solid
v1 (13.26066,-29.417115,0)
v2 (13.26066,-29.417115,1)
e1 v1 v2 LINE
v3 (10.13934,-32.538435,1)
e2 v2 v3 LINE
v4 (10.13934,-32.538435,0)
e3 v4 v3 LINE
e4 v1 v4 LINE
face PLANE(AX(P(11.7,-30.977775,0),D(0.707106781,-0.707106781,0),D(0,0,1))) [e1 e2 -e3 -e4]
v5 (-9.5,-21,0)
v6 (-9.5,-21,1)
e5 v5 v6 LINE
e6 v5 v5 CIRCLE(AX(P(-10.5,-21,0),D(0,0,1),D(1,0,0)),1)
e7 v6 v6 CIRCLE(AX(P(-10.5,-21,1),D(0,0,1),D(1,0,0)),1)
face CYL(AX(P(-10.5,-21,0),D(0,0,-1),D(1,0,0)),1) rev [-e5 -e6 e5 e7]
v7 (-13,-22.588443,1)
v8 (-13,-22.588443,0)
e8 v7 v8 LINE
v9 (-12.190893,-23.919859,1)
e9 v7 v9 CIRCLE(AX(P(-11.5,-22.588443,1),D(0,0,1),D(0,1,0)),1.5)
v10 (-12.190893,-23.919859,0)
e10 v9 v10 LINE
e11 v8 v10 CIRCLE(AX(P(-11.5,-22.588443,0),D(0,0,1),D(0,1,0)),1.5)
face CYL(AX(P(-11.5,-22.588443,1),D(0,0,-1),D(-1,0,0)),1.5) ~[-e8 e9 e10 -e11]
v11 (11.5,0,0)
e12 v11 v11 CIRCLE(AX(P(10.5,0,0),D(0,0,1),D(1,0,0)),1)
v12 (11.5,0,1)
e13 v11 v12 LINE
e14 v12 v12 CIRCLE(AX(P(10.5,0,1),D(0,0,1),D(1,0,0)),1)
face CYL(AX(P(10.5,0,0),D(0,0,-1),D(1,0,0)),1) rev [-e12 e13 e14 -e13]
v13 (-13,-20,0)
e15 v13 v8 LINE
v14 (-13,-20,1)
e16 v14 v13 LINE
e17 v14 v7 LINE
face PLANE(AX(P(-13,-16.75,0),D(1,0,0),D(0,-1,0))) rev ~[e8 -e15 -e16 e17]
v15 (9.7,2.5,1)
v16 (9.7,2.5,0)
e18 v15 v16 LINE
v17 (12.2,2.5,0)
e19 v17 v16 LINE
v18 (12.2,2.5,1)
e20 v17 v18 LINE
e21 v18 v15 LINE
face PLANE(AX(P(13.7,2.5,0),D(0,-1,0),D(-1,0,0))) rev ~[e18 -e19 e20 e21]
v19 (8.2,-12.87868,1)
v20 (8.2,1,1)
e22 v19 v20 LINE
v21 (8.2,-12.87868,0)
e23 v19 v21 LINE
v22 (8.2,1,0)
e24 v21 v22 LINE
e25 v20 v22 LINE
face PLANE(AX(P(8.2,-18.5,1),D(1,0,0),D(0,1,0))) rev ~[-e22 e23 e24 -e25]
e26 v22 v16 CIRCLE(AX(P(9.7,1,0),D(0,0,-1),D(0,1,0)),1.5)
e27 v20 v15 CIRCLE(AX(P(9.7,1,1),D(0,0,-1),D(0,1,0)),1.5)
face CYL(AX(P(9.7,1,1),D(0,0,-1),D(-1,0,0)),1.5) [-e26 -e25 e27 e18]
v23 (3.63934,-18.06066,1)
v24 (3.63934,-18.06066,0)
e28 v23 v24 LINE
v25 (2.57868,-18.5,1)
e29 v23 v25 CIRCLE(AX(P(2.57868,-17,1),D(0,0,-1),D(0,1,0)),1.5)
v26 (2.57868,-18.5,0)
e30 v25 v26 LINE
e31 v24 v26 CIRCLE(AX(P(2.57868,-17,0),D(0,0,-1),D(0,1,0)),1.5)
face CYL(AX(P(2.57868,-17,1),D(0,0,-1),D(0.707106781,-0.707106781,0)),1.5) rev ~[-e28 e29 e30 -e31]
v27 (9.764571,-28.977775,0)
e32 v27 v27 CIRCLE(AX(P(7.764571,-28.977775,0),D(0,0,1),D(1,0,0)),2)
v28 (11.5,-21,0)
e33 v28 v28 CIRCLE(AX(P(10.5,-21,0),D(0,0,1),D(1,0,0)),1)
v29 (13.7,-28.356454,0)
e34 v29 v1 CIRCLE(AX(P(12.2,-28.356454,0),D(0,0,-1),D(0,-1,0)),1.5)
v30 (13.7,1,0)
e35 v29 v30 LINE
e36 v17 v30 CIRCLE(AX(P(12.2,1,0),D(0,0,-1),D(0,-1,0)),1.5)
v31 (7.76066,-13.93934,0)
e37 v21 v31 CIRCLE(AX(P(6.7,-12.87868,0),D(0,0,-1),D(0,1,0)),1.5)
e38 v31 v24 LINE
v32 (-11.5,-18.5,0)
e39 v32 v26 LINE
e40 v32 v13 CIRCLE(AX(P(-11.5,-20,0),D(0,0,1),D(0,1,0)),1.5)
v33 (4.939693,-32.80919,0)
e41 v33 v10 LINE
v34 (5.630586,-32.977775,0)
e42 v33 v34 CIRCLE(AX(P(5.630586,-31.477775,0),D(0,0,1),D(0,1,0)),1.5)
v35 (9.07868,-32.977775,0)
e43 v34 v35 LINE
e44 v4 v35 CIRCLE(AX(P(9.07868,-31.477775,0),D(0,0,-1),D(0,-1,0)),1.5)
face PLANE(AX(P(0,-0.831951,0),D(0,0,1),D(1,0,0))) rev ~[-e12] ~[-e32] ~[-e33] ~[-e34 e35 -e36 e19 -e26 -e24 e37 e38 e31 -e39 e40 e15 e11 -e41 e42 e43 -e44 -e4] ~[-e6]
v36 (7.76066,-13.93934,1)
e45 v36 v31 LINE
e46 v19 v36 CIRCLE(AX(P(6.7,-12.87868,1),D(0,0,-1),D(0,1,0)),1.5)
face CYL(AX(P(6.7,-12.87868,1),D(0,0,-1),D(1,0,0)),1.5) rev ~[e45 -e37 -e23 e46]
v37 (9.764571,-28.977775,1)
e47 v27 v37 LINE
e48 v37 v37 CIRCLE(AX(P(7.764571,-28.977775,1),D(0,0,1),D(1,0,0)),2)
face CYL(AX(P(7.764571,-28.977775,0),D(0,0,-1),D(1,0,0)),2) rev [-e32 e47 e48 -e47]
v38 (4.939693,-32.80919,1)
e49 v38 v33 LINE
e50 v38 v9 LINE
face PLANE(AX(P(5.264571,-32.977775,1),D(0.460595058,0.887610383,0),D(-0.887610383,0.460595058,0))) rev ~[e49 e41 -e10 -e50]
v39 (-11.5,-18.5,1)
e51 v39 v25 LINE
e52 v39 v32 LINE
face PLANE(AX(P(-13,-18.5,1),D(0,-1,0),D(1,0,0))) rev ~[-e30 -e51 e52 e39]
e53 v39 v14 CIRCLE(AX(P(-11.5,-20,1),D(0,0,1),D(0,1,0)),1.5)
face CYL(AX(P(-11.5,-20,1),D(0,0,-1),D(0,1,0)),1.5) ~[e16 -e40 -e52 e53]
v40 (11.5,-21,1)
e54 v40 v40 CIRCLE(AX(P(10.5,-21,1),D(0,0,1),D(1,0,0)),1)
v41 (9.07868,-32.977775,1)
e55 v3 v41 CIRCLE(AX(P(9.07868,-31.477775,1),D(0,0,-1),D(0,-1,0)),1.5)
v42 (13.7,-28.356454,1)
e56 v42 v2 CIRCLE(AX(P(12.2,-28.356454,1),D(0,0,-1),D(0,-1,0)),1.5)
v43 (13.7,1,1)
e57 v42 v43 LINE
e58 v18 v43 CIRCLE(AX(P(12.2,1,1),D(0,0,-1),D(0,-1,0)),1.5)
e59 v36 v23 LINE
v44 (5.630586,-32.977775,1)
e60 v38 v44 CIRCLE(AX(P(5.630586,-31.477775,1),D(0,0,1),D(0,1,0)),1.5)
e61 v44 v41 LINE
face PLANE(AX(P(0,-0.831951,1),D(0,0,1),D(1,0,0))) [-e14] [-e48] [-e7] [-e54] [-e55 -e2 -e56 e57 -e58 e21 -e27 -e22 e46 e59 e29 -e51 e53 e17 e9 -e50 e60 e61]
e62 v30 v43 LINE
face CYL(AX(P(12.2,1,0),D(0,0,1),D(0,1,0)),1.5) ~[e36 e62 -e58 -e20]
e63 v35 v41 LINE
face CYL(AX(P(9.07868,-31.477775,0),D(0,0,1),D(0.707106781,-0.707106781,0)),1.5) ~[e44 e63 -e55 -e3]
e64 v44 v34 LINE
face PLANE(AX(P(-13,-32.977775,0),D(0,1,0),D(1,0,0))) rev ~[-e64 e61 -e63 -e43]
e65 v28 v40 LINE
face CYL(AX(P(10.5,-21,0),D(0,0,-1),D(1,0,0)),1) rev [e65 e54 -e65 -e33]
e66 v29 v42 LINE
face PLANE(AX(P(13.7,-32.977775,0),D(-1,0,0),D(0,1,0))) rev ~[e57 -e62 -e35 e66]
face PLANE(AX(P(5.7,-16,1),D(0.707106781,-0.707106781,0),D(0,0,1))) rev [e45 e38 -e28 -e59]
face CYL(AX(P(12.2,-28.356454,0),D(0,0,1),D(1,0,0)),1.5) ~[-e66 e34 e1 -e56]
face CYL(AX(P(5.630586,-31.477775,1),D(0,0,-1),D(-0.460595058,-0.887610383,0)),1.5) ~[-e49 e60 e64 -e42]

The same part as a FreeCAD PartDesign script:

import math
import FreeCAD as App
import Part
import Sketcher
from FreeCAD import Vector
Q = App.Units.Quantity


def edges_at(feature, points):
    """Names of the edges that pass closest to the given points."""
    edges = feature.Shape.Edges
    near = lambda p: min(range(len(edges)), key=lambda i: edges[i].distToShape(Part.Vertex(*p))[0])
    return sorted({f"Edge{near(p) + 1}" for p in points})

doc = App.newDocument("Part")
params = doc.addObject("Spreadsheet::Sheet", "Params")
for row, (alias, value) in enumerate([
    ("sketch1_diameter", "2 mm"),
    ("sketch1_diameter2", "4 mm"),
    ("sketch1_radius", "6.25 mm"),
    ("sketch1_width", "2.5 mm"),
    ("sketch1_width2", "26.7 mm"),
    ("pad1_length", "1 mm"),
    ("sketch2_diameter", "2 mm"),
    ("sketch2_height", "21 mm"),
    ("sketch2_radius", "6.25 mm"),
    ("sketch2_width", "21.2 mm"),
    ("sketch2_width2", "2.5 mm"),
    ("chamfer_size", "4 mm"),
    ("chamfer2_size", "5 mm"),
    ("fillet_radius", "1.5 mm"),
], start=1):
    params.set(f"A{row}", alias)
    params.set(f"B{row}", "=" + value)
    params.setAlias(f"B{row}", alias)

body = doc.addObject("PartDesign::Body", "Body")

# Sketch on XY plane
sketch1 = body.newObject("Sketcher::SketchObject", "Sketch")
sketch1.AttachmentSupport = (doc.getObject("XY_Plane"), [""])
sketch1.MapMode = "FlatFace"
sketch1.addGeometry([
    Part.LineSegment(Vector(-13, 2.5, 0), Vector(-13, -4.25, 0)),  # 0
    Part.LineSegment(Vector(-13, -4.25, 0), Vector(-10.5, -4.25, 0)),  # 1
    Part.ArcOfCircle(Part.Circle(Vector(-10.5, -10.5, 0), Vector(0, 0, 1), 6.25), math.radians(-90), math.radians(90)),  # 2
    Part.LineSegment(Vector(-10.5, -16.75, 0), Vector(-13, -16.75, 0)),  # 3
    Part.LineSegment(Vector(-13, -16.75, 0), Vector(-13, -32.977775, 0)),  # 4
    Part.LineSegment(Vector(-13, -32.977775, 0), Vector(13.7, -32.977775, 0)),  # 5
    Part.LineSegment(Vector(13.7, -32.977775, 0), Vector(13.7, 2.5, 0)),  # 6
    Part.LineSegment(Vector(13.7, 2.5, 0), Vector(-13, 2.5, 0)),  # 7
    Part.Circle(Vector(-10.5, -21, 0), Vector(0, 0, 1), 1),  # 8
    Part.Circle(Vector(7.764571, -28.977775, 0), Vector(0, 0, 1), 2),  # 9
    Part.Circle(Vector(10.5, -21, 0), Vector(0, 0, 1), 1),  # 10
    Part.Circle(Vector(-10.5, 0, 0), Vector(0, 0, 1), 1),  # 11
    Part.Circle(Vector(10.5, 0, 0), Vector(0, 0, 1), 1),  # 12
], False)
sketch1.addConstraint([
    Sketcher.Constraint("Coincident", 0, 2, 1, 1),
    Sketcher.Constraint("Tangent", 1, 2, 2, 2),
    Sketcher.Constraint("Tangent", 2, 1, 3, 1),
    Sketcher.Constraint("Coincident", 3, 2, 4, 1),
    Sketcher.Constraint("Coincident", 4, 2, 5, 1),
    Sketcher.Constraint("Coincident", 5, 2, 6, 1),
    Sketcher.Constraint("Coincident", 6, 2, 7, 1),
    Sketcher.Constraint("Coincident", 7, 2, 0, 1),
    Sketcher.Constraint("Vertical", 0),
    Sketcher.Constraint("Horizontal", 1),
    Sketcher.Constraint("Horizontal", 3),
    Sketcher.Constraint("Vertical", 4),
    Sketcher.Constraint("Horizontal", 5),
    Sketcher.Constraint("Vertical", 6),
    Sketcher.Constraint("Horizontal", 7),
    Sketcher.Constraint("Equal", 8, 10),
    Sketcher.Constraint("Equal", 10, 11),
    Sketcher.Constraint("Equal", 11, 12),
    Sketcher.Constraint("Symmetric", 11, 3, 12, 3, -1, 1),
    Sketcher.Constraint("Symmetric", 8, 3, 10, 3, -2),
    Sketcher.Constraint("PointOnObject", 11, 3, -1),
    Sketcher.Constraint("Vertical", 2, 3, 8, 3),
    Sketcher.Constraint("Vertical", 8, 3, 11, 3),
    Sketcher.Constraint("Vertical", 0, 2, 3, 2),
    Sketcher.Constraint("Diameter", 8, Q("2 mm")),
    Sketcher.Constraint("Diameter", 9, Q("4 mm")),
    Sketcher.Constraint("Radius", 2, Q("6.25 mm")),
    Sketcher.Constraint("DistanceX", 1, 1, 1, 2, Q("2.5 mm")),
    Sketcher.Constraint("DistanceX", 5, 1, 5, 2, Q("26.7 mm")),
    Sketcher.Constraint("DistanceY", 8, 3, -1, 1, Q("21 mm")),
    Sketcher.Constraint("DistanceX", 0, 2, -1, 1, Q("13 mm")),
    Sketcher.Constraint("DistanceY", 4, 2, 9, 3, Q("4 mm")),
    Sketcher.Constraint("DistanceY", 2, 3, 6, 2, Q("13 mm")),
    Sketcher.Constraint("DistanceY", 2, 3, -1, 1, Q("10.5 mm")),
    Sketcher.Constraint("DistanceY", 4, 2, 4, 1, Q("16.227775 mm")),
    Sketcher.Constraint("DistanceX", -1, 1, 9, 3, Q("7.764571 mm")),
])
sketch1.setExpression("Constraints[24]", "Params.sketch1_diameter")
sketch1.setExpression("Constraints[25]", "Params.sketch1_diameter2")
sketch1.setExpression("Constraints[26]", "Params.sketch1_radius")
sketch1.setExpression("Constraints[27]", "Params.sketch1_width")
sketch1.setExpression("Constraints[28]", "Params.sketch1_width2")
pad1 = body.newObject("PartDesign::Pad", "Pad")
pad1.Profile = sketch1
pad1.setExpression("Length", "Params.pad1_length")

# Sketch on XY plane
sketch2 = body.newObject("Sketcher::SketchObject", "Sketch001")
sketch2.AttachmentSupport = (doc.getObject("XY_Plane"), [""])
sketch2.MapMode = "FlatFace"
sketch2.AttachmentOffset = App.Placement(Vector(0, 0, 1), App.Rotation())
sketch2.addGeometry([
    Part.LineSegment(Vector(5.264571, -32.977775, 0), Vector(-13, -23.5, 0)),  # 0
    Part.LineSegment(Vector(-13, -23.5, 0), Vector(-13, -32.977775, 0)),  # 1
    Part.LineSegment(Vector(-13, -32.977775, 0), Vector(5.264571, -32.977775, 0)),  # 2
    Part.LineSegment(Vector(-13, -16.75, 0), Vector(-13, -18.5, 0)),  # 3
    Part.LineSegment(Vector(-13, -18.5, 0), Vector(8.2, -18.5, 0)),  # 4
    Part.LineSegment(Vector(8.2, -18.5, 0), Vector(8.2, 2.5, 0)),  # 5
    Part.LineSegment(Vector(8.2, 2.5, 0), Vector(-13, 2.5, 0)),  # 6
    Part.LineSegment(Vector(-13, 2.5, 0), Vector(-13, -4.25, 0)),  # 7
    Part.LineSegment(Vector(-13, -4.25, 0), Vector(-10.5, -4.25, 0)),  # 8
    Part.ArcOfCircle(Part.Circle(Vector(-10.5, -10.5, 0), Vector(0, 0, 1), 6.25), math.radians(-90), math.radians(90)),  # 9
    Part.LineSegment(Vector(-10.5, -16.75, 0), Vector(-13, -16.75, 0)),  # 10
    Part.Circle(Vector(-10.5, 0, 0), Vector(0, 0, 1), 1),  # 11
], False)
sketch2.addConstraint([
    Sketcher.Constraint("Coincident", 0, 2, 1, 1),
    Sketcher.Constraint("Coincident", 1, 2, 2, 1),
    Sketcher.Constraint("Coincident", 2, 2, 0, 1),
    Sketcher.Constraint("Coincident", 3, 2, 4, 1),
    Sketcher.Constraint("Coincident", 4, 2, 5, 1),
    Sketcher.Constraint("Coincident", 5, 2, 6, 1),
    Sketcher.Constraint("Coincident", 6, 2, 7, 1),
    Sketcher.Constraint("Coincident", 7, 2, 8, 1),
    Sketcher.Constraint("Tangent", 8, 2, 9, 2),
    Sketcher.Constraint("Tangent", 9, 1, 10, 1),
    Sketcher.Constraint("Coincident", 10, 2, 3, 1),
    Sketcher.Constraint("Vertical", 1),
    Sketcher.Constraint("Horizontal", 2),
    Sketcher.Constraint("Vertical", 3),
    Sketcher.Constraint("Horizontal", 4),
    Sketcher.Constraint("Vertical", 5),
    Sketcher.Constraint("Horizontal", 6),
    Sketcher.Constraint("Vertical", 7),
    Sketcher.Constraint("Horizontal", 8),
    Sketcher.Constraint("Horizontal", 10),
    Sketcher.Constraint("PointOnObject", 11, 3, -1),
    Sketcher.Constraint("Vertical", 9, 3, 11, 3),
    Sketcher.Constraint("Vertical", 1, 2, 3, 2),
    Sketcher.Constraint("Vertical", 3, 2, 6, 2),
    Sketcher.Constraint("Diameter", 11, Q("2 mm")),
    Sketcher.Constraint("DistanceY", 5, 1, 5, 2, Q("21 mm")),
    Sketcher.Constraint("Radius", 9, Q("6.25 mm")),
    Sketcher.Constraint("DistanceX", 4, 1, 4, 2, Q("21.2 mm")),
    Sketcher.Constraint("DistanceX", 8, 1, 8, 2, Q("2.5 mm")),
    Sketcher.Constraint("DistanceX", 0, 2, -1, 1, Q("13 mm")),
    Sketcher.Constraint("DistanceY", 0, 2, 9, 3, Q("13 mm")),
    Sketcher.Constraint("DistanceY", 0, 2, 3, 2, Q("5 mm")),
    Sketcher.Constraint("DistanceY", 9, 3, -1, 1, Q("10.5 mm")),
    Sketcher.Constraint("DistanceX", 2, 1, 2, 2, Q("18.264571 mm")),
    Sketcher.Constraint("Distance", 0, Q("20.577239 mm")),
])
sketch2.setExpression("Constraints[24]", "Params.sketch2_diameter")
sketch2.setExpression("Constraints[25]", "Params.sketch2_height")
sketch2.setExpression("Constraints[26]", "Params.sketch2_radius")
sketch2.setExpression("Constraints[27]", "Params.sketch2_width")
sketch2.setExpression("Constraints[28]", "Params.sketch2_width2")
pocket1 = body.newObject("PartDesign::Pocket", "Pocket")
pocket1.Profile = sketch2
pocket1.Type = "ThroughAll"
doc.recompute()

chamfer = body.newObject("PartDesign::Chamfer", "Chamfer")
chamfer.Base = (pocket1, edges_at(pocket1, [(13.7, -32.978, 0.5)]))
chamfer.setExpression("Size", "Params.chamfer_size")
doc.recompute()

chamfer2 = body.newObject("PartDesign::Chamfer", "Chamfer001")
chamfer2.Base = (chamfer, edges_at(chamfer, [(8.2, -18.5, 0.5)]))
chamfer2.setExpression("Size", "Params.chamfer2_size")
doc.recompute()

fillet = body.newObject("PartDesign::Fillet", "Fillet")
fillet.Base = (chamfer2, edges_at(chamfer2, [
    (-13, -23.5, 0.5),
    (5.265, -32.978, 0.5),
    (9.7, -32.978, 0.5),
    (13.7, -28.978, 0.5),
    (8.2, -13.5, 0.5),
    (3.2, -18.5, 0.5),
    (-13, -18.5, 0.5),
    (13.7, 2.5, 0.5),
    (8.2, 2.5, 0.5),
]))
fillet.setExpression("Radius", "Params.fillet_radius")

doc.recompute()
